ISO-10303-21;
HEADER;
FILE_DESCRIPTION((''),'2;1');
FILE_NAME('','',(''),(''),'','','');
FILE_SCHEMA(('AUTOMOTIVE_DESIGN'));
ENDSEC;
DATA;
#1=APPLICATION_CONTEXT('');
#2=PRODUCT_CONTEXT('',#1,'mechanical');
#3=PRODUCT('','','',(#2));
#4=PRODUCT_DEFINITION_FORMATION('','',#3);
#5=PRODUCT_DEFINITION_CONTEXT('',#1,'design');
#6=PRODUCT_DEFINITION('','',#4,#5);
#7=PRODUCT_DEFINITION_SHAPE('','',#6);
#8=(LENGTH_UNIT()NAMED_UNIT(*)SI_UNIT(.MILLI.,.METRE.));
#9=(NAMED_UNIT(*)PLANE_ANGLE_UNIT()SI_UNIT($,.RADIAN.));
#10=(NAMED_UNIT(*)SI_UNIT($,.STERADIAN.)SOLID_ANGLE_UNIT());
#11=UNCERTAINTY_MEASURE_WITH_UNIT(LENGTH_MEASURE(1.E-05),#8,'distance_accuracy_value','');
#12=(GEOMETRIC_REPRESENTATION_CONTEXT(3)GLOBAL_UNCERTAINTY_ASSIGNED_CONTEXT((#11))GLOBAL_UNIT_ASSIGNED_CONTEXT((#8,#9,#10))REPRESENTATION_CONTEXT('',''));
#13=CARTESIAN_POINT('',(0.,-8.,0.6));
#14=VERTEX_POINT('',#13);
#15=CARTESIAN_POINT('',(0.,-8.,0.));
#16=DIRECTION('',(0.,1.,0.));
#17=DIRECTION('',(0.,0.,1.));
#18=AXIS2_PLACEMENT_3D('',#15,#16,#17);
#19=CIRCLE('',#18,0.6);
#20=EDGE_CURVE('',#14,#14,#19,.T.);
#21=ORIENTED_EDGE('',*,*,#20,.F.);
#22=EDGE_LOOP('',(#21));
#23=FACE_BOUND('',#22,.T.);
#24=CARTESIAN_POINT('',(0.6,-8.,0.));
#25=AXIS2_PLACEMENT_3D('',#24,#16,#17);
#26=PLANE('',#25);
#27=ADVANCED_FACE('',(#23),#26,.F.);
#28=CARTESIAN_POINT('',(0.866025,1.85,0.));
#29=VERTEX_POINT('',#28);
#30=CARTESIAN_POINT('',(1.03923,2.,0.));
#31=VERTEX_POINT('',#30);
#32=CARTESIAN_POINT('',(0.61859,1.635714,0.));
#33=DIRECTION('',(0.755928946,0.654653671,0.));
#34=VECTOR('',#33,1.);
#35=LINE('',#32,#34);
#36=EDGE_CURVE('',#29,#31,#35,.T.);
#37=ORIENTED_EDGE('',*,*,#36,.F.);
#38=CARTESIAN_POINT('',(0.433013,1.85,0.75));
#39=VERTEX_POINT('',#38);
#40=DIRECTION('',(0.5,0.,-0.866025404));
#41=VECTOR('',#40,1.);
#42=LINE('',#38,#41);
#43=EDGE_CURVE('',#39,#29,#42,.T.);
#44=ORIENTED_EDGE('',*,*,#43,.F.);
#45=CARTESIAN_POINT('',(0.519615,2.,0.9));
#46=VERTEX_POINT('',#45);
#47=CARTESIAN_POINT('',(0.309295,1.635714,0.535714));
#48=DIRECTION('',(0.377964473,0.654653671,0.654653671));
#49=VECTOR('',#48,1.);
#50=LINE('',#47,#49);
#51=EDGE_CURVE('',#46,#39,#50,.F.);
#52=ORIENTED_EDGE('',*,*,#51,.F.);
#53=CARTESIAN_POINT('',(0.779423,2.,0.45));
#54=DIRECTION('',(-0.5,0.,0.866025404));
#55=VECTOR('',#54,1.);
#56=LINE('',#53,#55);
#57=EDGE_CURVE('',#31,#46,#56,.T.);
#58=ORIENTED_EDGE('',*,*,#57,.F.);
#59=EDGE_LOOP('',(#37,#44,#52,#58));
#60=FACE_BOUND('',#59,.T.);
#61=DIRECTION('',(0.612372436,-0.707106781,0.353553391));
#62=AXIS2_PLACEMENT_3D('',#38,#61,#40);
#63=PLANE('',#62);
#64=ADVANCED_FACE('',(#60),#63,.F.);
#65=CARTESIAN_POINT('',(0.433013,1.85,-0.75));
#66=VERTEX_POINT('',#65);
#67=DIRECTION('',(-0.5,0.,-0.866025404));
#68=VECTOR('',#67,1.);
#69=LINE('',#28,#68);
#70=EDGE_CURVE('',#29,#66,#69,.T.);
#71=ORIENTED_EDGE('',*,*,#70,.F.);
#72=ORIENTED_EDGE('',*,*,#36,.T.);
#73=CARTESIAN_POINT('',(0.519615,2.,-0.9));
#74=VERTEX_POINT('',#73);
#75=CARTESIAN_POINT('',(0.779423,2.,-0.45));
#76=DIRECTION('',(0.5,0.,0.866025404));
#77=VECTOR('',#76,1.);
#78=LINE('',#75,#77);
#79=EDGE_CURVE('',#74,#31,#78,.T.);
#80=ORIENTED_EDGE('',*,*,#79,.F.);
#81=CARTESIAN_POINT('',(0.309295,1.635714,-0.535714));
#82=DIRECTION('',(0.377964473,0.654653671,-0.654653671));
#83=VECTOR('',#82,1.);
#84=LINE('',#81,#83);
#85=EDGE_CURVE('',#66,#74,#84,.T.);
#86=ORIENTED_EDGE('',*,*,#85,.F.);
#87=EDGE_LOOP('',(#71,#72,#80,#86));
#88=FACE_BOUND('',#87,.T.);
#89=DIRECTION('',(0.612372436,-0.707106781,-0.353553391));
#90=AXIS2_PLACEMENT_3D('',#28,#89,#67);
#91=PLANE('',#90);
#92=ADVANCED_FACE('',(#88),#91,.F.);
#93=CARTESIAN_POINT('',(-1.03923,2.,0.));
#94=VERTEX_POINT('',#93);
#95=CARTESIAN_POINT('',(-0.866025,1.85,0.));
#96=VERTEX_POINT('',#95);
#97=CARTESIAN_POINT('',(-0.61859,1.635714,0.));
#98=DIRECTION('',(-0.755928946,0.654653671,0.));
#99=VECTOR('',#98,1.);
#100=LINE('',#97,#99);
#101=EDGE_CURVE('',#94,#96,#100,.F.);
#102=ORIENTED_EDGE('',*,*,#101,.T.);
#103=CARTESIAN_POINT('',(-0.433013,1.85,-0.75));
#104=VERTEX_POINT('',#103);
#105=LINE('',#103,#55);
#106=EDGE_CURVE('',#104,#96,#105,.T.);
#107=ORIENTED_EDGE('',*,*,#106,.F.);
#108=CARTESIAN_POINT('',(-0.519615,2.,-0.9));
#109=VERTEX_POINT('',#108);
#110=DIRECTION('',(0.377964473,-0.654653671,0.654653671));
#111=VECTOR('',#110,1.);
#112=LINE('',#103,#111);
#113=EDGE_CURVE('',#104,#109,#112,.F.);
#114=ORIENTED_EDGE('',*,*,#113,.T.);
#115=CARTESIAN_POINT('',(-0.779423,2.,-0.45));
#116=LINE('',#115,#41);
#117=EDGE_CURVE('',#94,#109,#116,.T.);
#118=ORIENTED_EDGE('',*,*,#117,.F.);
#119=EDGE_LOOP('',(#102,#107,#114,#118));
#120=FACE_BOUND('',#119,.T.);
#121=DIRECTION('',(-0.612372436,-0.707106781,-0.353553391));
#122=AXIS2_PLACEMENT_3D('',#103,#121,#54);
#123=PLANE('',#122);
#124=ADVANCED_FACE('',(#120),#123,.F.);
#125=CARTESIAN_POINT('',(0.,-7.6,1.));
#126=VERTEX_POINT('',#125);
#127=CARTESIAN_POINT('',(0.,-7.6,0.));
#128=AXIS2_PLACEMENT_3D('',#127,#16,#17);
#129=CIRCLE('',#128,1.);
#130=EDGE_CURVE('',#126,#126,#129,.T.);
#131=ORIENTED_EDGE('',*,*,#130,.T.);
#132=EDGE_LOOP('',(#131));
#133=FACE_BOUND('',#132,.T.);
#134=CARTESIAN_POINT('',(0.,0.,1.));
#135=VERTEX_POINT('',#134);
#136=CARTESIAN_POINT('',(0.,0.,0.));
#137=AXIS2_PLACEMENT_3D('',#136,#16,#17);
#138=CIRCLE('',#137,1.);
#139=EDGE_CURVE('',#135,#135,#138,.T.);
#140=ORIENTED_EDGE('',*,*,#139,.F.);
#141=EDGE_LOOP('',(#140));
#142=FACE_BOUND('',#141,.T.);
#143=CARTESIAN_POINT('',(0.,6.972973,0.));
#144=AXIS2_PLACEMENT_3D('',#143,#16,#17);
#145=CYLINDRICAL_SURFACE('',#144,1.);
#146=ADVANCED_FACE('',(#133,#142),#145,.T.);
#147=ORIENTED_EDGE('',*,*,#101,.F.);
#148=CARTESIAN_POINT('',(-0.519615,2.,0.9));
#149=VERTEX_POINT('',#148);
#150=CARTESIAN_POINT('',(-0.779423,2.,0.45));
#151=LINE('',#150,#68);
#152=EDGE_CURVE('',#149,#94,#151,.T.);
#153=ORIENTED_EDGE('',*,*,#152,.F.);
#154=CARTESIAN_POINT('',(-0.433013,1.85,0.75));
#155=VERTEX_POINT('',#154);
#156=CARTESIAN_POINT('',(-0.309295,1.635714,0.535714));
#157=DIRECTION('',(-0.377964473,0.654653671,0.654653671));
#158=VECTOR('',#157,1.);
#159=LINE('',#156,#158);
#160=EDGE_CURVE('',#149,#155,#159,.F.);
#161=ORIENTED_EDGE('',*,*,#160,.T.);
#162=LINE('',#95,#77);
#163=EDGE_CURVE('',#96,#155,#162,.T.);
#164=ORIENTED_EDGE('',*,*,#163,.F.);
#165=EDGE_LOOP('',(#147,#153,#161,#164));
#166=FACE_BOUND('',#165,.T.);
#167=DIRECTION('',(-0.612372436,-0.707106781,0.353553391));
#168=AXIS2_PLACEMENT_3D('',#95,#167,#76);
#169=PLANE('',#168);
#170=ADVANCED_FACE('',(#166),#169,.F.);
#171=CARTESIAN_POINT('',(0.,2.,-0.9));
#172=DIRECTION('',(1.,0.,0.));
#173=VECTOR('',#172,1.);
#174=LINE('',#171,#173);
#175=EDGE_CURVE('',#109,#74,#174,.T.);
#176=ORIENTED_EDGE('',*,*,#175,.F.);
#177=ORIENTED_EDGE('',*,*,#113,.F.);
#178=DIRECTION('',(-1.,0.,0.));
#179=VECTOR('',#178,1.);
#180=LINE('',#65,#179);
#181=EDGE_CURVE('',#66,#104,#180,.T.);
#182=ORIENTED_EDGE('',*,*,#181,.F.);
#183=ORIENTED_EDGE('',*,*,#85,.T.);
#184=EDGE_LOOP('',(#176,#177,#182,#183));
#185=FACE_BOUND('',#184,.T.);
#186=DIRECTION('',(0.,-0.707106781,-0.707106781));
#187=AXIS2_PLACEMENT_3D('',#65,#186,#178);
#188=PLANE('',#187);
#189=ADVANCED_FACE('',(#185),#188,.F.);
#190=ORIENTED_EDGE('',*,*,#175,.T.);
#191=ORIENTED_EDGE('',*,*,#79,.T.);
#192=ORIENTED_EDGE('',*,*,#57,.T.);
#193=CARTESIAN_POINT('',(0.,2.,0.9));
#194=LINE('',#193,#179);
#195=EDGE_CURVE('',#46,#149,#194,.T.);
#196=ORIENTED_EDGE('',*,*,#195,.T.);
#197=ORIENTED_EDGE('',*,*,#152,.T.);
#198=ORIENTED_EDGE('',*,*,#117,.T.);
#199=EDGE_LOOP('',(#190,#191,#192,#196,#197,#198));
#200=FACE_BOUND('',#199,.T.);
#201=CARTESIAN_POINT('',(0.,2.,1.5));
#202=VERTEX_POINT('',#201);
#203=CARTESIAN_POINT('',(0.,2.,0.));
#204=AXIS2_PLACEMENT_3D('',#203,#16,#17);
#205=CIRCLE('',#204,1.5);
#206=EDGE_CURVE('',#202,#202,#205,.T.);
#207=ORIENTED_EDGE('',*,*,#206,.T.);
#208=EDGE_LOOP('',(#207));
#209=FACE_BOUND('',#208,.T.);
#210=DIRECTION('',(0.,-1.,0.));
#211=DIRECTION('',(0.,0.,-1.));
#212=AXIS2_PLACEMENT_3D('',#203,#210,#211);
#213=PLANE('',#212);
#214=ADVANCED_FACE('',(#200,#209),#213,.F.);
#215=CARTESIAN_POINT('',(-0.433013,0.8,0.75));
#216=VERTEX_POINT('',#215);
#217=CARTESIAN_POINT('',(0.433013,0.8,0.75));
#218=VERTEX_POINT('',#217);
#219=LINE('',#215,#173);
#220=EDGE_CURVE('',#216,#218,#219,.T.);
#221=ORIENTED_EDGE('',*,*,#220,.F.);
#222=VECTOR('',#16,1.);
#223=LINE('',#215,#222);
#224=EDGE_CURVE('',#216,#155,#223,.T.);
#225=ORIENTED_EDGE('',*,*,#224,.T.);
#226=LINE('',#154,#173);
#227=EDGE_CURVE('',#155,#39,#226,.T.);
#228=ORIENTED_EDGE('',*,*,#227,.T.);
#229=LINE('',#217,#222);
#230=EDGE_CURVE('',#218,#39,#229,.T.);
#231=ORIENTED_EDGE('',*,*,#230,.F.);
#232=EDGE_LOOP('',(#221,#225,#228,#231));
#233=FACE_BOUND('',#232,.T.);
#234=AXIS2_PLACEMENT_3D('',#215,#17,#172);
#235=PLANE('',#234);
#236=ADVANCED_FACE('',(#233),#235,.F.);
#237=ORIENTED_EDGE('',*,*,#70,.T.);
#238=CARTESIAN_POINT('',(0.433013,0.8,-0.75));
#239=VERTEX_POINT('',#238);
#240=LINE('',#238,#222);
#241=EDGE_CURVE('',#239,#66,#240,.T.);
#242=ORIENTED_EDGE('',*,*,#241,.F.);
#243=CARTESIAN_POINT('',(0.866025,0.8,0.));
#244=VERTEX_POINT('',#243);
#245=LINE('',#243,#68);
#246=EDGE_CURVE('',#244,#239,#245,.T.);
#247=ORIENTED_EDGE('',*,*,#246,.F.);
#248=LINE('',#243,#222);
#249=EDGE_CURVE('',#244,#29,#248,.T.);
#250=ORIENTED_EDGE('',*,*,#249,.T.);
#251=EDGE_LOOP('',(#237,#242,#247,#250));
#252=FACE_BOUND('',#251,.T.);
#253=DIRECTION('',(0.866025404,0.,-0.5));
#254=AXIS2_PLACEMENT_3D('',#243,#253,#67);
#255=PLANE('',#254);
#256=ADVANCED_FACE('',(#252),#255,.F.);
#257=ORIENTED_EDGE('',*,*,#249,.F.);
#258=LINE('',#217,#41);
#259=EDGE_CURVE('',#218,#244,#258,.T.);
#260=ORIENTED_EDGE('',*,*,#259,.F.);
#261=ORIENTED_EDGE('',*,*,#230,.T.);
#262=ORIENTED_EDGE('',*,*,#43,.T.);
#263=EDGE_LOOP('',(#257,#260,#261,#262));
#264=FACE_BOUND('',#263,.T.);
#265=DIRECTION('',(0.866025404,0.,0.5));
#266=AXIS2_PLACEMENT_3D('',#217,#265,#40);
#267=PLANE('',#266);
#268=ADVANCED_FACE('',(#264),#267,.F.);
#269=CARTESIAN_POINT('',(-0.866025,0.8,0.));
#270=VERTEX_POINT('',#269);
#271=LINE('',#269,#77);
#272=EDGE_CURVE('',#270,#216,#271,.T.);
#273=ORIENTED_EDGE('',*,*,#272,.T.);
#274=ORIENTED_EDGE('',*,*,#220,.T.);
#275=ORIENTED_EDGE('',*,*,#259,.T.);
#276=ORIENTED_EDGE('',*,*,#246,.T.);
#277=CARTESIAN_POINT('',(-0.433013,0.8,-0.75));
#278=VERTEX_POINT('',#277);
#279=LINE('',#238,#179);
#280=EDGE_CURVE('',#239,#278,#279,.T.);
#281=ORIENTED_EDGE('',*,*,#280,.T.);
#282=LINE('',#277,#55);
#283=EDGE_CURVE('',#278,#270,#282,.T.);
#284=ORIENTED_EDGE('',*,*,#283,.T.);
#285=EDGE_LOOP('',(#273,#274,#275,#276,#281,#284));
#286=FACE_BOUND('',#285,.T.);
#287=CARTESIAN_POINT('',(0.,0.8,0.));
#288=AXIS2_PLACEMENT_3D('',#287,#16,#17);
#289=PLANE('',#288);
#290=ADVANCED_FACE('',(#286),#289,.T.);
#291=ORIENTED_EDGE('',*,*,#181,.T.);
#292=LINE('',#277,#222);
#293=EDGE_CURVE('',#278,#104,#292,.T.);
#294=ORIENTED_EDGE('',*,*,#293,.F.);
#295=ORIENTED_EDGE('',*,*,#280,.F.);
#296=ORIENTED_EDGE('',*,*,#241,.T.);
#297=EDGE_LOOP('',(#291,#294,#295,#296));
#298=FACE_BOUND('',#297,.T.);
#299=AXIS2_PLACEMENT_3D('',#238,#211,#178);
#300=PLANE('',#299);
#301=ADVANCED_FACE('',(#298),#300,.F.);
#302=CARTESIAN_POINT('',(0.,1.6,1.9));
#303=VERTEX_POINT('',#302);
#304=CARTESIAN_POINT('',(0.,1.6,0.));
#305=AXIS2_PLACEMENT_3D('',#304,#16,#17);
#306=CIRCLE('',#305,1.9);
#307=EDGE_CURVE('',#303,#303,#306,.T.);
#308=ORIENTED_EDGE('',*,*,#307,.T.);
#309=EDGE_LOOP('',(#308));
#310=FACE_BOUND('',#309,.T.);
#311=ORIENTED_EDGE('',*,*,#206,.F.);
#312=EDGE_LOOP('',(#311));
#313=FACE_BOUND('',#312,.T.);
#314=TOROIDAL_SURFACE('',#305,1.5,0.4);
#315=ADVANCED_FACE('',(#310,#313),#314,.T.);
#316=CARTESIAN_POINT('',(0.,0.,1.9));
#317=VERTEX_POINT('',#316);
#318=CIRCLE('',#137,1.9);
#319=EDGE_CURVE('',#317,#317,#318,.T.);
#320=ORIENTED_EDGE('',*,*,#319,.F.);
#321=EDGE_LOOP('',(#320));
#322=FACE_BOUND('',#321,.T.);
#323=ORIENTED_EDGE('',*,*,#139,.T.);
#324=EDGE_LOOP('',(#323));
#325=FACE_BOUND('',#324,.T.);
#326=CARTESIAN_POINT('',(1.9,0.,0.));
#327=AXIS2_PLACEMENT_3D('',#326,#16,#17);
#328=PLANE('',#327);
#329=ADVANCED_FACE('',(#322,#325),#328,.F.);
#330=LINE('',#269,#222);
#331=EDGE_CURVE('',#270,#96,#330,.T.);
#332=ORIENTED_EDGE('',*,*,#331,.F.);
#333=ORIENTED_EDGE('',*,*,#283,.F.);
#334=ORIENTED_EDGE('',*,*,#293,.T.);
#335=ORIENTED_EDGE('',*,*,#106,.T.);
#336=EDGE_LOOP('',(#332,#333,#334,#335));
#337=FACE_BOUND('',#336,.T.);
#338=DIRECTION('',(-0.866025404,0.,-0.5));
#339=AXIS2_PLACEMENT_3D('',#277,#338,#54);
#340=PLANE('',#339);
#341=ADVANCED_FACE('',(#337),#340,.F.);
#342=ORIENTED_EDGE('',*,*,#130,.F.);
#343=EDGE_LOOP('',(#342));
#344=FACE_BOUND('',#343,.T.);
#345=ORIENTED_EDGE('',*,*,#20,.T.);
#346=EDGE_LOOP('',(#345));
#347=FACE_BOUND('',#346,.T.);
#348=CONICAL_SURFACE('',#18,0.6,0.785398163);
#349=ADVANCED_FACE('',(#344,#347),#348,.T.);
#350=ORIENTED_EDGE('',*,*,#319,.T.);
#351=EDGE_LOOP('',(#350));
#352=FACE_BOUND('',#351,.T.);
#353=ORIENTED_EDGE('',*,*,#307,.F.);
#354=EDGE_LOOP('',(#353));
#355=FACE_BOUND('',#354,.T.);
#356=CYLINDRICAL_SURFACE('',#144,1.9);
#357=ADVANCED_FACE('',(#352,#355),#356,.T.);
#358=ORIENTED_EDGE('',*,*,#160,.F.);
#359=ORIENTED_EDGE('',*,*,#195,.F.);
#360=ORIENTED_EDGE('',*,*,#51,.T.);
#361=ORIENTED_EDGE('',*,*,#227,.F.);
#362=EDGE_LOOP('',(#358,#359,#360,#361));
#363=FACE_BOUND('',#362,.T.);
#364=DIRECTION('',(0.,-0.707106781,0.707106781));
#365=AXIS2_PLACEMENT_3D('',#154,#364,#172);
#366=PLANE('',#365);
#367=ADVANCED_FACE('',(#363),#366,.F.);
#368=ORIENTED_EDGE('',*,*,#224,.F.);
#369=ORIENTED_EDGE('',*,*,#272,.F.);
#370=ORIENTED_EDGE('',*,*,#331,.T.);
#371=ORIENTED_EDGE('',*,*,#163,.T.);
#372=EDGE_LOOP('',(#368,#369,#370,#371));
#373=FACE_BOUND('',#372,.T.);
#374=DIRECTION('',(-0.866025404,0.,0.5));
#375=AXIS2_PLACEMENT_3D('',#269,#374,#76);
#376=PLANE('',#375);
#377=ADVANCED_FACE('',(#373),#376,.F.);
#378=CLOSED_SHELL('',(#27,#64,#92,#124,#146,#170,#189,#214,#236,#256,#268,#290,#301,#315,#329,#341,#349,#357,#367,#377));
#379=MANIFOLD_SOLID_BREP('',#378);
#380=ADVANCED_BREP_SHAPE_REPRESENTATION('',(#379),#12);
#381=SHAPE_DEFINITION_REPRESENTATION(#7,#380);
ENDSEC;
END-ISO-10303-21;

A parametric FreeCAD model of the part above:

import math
import FreeCAD as App
import Part
import Sketcher

V = App.Vector
Q = App.Units.Quantity


def edges_at(feature, points):
    """Names of the edges that pass closest to the given points."""
    edges = feature.Shape.Edges
    near = lambda p: min(range(len(edges)), key=lambda i: edges[i].distToShape(Part.Vertex(*p))[0])
    return sorted({f"Edge{near(p) + 1}" for p in points})


def add_polygon(sketch, points):
    """Adds a closed chain of lines whose ends are joined by coincident constraints."""
    first, n = sketch.GeometryCount, len(points)
    for a, b in zip(points, points[1:] + points[:1]):
        sketch.addGeometry(Part.LineSegment(App.Vector(*a, 0), App.Vector(*b, 0)), False)
    for i in range(n):
        sketch.addConstraint(Sketcher.Constraint("Coincident", first + i, 2, first + (i + 1) % n, 1))

doc = App.newDocument("Part")
body = doc.addObject("PartDesign::Body", "Body")

sketch1 = body.newObject("Sketcher::SketchObject", "Sketch")
sketch1.AttachmentSupport = (doc.getObject("XY_Plane"), [""])
sketch1.MapMode = "FlatFace"
sketch1.addGeometry(Part.LineSegment(V(0.6, -8, 0), V(1, -7.6, 0)), False)
sketch1.addGeometry(Part.LineSegment(V(1, -7.6, 0), V(1, 0, 0)), False)
sketch1.addGeometry(Part.LineSegment(V(1, 0, 0), V(1.9, 0, 0)), False)
sketch1.addGeometry(Part.LineSegment(V(1.9, 0, 0), V(1.9, 1.6, 0)), False)
sketch1.addGeometry(Part.ArcOfCircle(Part.Circle(V(1.5, 1.6, 0), V(0, 0, 1), 0.4), math.radians(0), math.radians(90)), False)
sketch1.addGeometry(Part.LineSegment(V(1.5, 2, 0), V(0, 2, 0)), False)
sketch1.addGeometry(Part.LineSegment(V(0, 2, 0), V(0, -8, 0)), False)
sketch1.addGeometry(Part.LineSegment(V(0, -8, 0), V(0.6, -8, 0)), False)
sketch1.addConstraint(Sketcher.Constraint("Coincident", 0, 2, 1, 1))
sketch1.addConstraint(Sketcher.Constraint("Coincident", 1, 2, 2, 1))
sketch1.addConstraint(Sketcher.Constraint("Coincident", 2, 2, 3, 1))
sketch1.addConstraint(Sketcher.Constraint("Tangent", 3, 2, 4, 1))
sketch1.addConstraint(Sketcher.Constraint("Tangent", 4, 2, 5, 1))
sketch1.addConstraint(Sketcher.Constraint("Coincident", 5, 2, 6, 1))
sketch1.addConstraint(Sketcher.Constraint("Coincident", 6, 2, 7, 1))
sketch1.addConstraint(Sketcher.Constraint("Coincident", 7, 2, 0, 1))
sketch1.addConstraint(Sketcher.Constraint("Vertical", 1))
sketch1.addConstraint(Sketcher.Constraint("Horizontal", 2))
sketch1.addConstraint(Sketcher.Constraint("Vertical", 3))
sketch1.addConstraint(Sketcher.Constraint("Horizontal", 5))
sketch1.addConstraint(Sketcher.Constraint("Vertical", 6))
sketch1.addConstraint(Sketcher.Constraint("Horizontal", 7))
sketch1.addConstraint(Sketcher.Constraint("PointOnObject", 1, 2, -1))
sketch1.addConstraint(Sketcher.Constraint("PointOnObject", 5, 2, -2))
sketch1.addConstraint(Sketcher.Constraint("Radius", 4, Q("0.4 mm")))
sketch1.addConstraint(Sketcher.Constraint("DistanceY", 6, 2, 6, 1, Q("10 mm")))
sketch1.addConstraint(Sketcher.Constraint("Angle", 0, Q("45 deg")))
sketch1.addConstraint(Sketcher.Constraint("DistanceX", 2, 1, 2, 2, Q("0.9 mm")))
sketch1.addConstraint(Sketcher.Constraint("DistanceX", 5, 2, 5, 1, Q("1.5 mm")))
sketch1.addConstraint(Sketcher.Constraint("DistanceX", 7, 1, 7, 2, Q("0.6 mm")))
sketch1.addConstraint(Sketcher.Constraint("DistanceY", 1, 1, 1, 2, Q("7.6 mm")))
revolution = body.newObject("PartDesign::Revolution", "Revolution")
revolution.Profile = sketch1
revolution.ReferenceAxis = (sketch1, ["V_Axis"])
revolution.Angle = 360

sketch2 = body.newObject("Sketcher::SketchObject", "Sketch001")
sketch2.AttachmentSupport = (doc.getObject("XZ_Plane"), [""])
sketch2.MapMode = "FlatFace"
sketch2.AttachmentOffset = App.Placement(V(0, 0, -2), App.Rotation())
add_polygon(sketch2, [(-0.9, 0), (-0.4, 0.8), (0.4, 0.8), (0.9, 0), (0.4, -0.8), (-0.4, -0.8)])
sketch2.addConstraint(Sketcher.Constraint("Horizontal", 1))
sketch2.addConstraint(Sketcher.Constraint("Horizontal", 4))
sketch2.addConstraint(Sketcher.Constraint("Symmetric", 0, 2, 3, 2, -1, 1))
sketch2.addConstraint(Sketcher.Constraint("Symmetric", 2, 2, 5, 2, -1, 1))
sketch2.addConstraint(Sketcher.Constraint("PointOnObject", 2, 2, -1))
sketch2.addConstraint(Sketcher.Constraint("Parallel", 2, 5))
sketch2.addConstraint(Sketcher.Constraint("Vertical", 1, 2, 3, 2))
sketch2.addConstraint(Sketcher.Constraint("Angle", 0, Q("60 deg")))
sketch2.addConstraint(Sketcher.Constraint("DistanceY", 3, 2, 1, 2, Q("1.5 mm")))
sketch2.addConstraint(Sketcher.Constraint("DistanceX", 1, 1, 1, 2, Q("0.866025 mm")))
pocket1 = body.newObject("PartDesign::Pocket", "Pocket")
pocket1.Profile = sketch2
pocket1.Length = 1.2
pocket1.Reversed = True
doc.recompute()

chamfer = body.newObject("PartDesign::Chamfer", "Chamfer")
chamfer.Base = (pocket1, edges_at(pocket1, [
    (-0.65, 2, -0.375),
    (-0.65, 2, 0.375),
    (0, 2, 0.75),
    (0.65, 2, 0.375),
    (0.65, 2, -0.375),
    (0, 2, -0.75),
]))
chamfer.Size = 0.15

doc.recompute()
